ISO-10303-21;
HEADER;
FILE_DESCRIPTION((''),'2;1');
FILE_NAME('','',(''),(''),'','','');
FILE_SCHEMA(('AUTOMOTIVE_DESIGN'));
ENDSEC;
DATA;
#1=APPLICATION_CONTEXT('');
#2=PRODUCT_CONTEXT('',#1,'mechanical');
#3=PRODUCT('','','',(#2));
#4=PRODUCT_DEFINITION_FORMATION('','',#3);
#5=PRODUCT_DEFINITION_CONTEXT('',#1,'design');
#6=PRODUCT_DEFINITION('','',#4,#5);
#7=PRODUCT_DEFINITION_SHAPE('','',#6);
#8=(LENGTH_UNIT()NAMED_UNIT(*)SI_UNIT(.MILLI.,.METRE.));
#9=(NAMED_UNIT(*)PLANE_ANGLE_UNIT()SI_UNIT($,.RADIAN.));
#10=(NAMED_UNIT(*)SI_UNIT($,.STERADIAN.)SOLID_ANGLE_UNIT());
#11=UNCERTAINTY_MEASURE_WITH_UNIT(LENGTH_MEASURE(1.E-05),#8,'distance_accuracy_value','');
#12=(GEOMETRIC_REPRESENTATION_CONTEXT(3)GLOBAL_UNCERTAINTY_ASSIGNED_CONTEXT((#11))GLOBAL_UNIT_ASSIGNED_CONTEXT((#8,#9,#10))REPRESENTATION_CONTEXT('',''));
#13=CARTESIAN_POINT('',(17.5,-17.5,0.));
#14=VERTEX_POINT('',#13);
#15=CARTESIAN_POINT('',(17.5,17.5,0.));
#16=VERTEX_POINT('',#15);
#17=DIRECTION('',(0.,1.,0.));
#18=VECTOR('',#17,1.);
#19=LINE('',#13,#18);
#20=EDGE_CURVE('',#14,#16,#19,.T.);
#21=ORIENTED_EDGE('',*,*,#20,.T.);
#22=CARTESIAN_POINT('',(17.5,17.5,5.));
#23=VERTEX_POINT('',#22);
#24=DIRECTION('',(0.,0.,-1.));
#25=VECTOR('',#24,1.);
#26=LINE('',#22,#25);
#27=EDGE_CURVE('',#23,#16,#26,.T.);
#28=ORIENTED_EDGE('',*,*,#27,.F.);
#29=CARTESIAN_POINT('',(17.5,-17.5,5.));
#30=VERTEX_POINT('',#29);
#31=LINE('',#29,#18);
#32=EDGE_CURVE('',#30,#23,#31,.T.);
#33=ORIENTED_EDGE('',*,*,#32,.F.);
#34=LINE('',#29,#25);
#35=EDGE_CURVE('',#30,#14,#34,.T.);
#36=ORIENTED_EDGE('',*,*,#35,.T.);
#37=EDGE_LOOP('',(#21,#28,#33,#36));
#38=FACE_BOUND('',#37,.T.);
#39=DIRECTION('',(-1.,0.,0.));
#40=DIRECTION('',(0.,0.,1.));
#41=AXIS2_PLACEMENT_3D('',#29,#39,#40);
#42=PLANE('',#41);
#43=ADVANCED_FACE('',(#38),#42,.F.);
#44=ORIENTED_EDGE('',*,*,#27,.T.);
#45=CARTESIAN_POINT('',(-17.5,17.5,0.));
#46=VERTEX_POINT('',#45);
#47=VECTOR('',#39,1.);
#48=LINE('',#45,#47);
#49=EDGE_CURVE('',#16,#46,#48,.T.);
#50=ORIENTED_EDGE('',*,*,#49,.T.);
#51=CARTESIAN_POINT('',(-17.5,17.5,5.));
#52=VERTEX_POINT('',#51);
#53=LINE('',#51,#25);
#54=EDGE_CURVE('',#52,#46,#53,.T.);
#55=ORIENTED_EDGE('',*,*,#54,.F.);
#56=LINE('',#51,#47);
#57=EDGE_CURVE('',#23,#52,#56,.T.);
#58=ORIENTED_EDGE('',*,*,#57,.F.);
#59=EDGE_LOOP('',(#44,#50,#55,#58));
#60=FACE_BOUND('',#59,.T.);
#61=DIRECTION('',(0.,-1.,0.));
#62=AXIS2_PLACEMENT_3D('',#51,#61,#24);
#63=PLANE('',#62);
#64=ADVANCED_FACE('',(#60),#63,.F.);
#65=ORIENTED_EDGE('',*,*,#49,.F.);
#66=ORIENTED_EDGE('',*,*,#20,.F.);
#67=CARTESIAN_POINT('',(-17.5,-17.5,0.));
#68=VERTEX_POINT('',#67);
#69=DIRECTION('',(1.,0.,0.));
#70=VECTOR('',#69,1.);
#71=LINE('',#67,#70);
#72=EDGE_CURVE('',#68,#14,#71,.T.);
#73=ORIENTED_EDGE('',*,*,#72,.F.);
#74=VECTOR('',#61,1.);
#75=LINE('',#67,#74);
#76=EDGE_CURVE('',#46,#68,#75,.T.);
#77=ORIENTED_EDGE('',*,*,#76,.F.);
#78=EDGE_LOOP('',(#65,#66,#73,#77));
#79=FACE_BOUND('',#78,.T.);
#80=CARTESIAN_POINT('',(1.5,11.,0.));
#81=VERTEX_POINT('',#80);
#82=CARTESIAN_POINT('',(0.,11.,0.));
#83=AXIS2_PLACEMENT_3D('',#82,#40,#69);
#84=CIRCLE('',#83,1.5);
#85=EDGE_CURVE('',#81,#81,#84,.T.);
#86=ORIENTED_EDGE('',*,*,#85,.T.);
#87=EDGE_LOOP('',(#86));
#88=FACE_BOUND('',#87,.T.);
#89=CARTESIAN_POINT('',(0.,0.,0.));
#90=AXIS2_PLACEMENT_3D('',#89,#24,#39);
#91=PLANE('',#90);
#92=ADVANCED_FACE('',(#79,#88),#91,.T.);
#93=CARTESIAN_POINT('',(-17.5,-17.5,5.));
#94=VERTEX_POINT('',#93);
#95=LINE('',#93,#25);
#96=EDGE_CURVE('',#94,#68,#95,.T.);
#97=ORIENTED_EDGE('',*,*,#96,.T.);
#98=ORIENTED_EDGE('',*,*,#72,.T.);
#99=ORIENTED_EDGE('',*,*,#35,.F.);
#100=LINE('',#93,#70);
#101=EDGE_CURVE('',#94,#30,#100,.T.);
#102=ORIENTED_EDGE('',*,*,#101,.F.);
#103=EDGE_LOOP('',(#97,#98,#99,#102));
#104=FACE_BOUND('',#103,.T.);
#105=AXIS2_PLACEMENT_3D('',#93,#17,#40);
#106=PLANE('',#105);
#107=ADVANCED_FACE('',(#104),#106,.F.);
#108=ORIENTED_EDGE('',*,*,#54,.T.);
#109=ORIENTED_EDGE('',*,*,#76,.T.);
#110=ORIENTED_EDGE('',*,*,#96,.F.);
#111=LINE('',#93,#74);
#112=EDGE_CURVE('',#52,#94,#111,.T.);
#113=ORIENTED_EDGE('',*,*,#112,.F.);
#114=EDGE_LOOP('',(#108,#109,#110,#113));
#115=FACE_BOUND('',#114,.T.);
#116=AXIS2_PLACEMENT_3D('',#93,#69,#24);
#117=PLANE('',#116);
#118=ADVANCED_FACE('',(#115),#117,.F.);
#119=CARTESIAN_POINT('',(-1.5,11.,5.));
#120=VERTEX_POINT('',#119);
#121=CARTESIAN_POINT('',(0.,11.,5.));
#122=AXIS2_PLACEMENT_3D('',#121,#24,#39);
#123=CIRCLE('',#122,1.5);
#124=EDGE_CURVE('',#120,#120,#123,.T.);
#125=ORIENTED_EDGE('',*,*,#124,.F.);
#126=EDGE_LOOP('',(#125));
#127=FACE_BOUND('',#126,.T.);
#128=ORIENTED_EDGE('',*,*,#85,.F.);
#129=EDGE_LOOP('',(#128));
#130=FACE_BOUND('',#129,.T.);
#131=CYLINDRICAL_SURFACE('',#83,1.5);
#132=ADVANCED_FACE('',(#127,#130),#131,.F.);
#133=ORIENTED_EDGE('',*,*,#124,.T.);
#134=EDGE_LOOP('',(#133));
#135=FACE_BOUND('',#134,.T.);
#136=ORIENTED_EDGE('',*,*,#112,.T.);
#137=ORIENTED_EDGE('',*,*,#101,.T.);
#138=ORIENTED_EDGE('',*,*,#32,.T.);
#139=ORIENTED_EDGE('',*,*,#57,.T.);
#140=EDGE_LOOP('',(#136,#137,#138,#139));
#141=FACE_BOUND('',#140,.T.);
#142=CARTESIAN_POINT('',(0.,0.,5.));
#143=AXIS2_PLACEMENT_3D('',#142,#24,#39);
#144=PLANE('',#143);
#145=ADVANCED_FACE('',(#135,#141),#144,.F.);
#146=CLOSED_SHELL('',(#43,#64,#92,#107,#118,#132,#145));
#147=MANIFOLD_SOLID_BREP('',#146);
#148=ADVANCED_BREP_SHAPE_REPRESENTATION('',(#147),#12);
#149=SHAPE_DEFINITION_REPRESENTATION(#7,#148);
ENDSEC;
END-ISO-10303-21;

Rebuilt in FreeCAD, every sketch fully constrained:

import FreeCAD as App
import Part
import Sketcher
from FreeCAD import Vector
Q = App.Units.Quantity


def add_polygon(sketch, points):
    """Adds a closed chain of lines whose ends are joined by coincident constraints."""
    first, n = sketch.GeometryCount, len(points)
    for a, b in zip(points, points[1:] + points[:1]):
        sketch.addGeometry(Part.LineSegment(App.Vector(*a, 0), App.Vector(*b, 0)), False)
    for i in range(n):
        sketch.addConstraint(Sketcher.Constraint("Coincident", first + i, 2, first + (i + 1) % n, 1))

doc = App.newDocument("Part")
body = doc.addObject("PartDesign::Body", "Body")

sketch1 = body.newObject("Sketcher::SketchObject", "Sketch")
sketch1.AttachmentSupport = (doc.getObject("XY_Plane"), [""])
sketch1.MapMode = "FlatFace"
add_polygon(sketch1, [(-18, 18), (-18, -18), (18, -18), (18, 18)])
sketch1.addConstraint(Sketcher.Constraint("Vertical", 0))
sketch1.addConstraint(Sketcher.Constraint("Horizontal", 1))
sketch1.addConstraint(Sketcher.Constraint("Vertical", 2))
sketch1.addConstraint(Sketcher.Constraint("Horizontal", 3))
sketch1.addConstraint(Sketcher.Constraint("Symmetric", 0, 2, 2, 2, -1, 1))
sketch1.addConstraint(Sketcher.Constraint("Equal", 3, 0))
sketch1.addConstraint(Sketcher.Constraint("DistanceX", 1, 1, 1, 2, Q("35 mm")))
pad1 = body.newObject("PartDesign::Pad", "Pad")
pad1.Profile = sketch1
pad1.Length = 5

sketch2 = body.newObject("Sketcher::SketchObject", "Sketch001")
sketch2.AttachmentSupport = (doc.getObject("XY_Plane"), [""])
sketch2.MapMode = "FlatFace"
sketch2.AttachmentOffset = App.Placement(Vector(0, 0, 5), App.Rotation())
sketch2.addGeometry(Part.Circle(Vector(0, 11, 0), Vector(0, 0, 1), 1.5), False)
sketch2.addConstraint(Sketcher.Constraint("PointOnObject", 0, 3, -2))
sketch2.addConstraint(Sketcher.Constraint("Diameter", 0, Q("3 mm")))
sketch2.addConstraint(Sketcher.Constraint("DistanceY", -1, 1, 0, 3, Q("11 mm")))
pocket1 = body.newObject("PartDesign::Pocket", "Pocket")
pocket1.Profile = sketch2
pocket1.Type = "ThroughAll"
pocket1.Midplane = True

doc.recompute()
